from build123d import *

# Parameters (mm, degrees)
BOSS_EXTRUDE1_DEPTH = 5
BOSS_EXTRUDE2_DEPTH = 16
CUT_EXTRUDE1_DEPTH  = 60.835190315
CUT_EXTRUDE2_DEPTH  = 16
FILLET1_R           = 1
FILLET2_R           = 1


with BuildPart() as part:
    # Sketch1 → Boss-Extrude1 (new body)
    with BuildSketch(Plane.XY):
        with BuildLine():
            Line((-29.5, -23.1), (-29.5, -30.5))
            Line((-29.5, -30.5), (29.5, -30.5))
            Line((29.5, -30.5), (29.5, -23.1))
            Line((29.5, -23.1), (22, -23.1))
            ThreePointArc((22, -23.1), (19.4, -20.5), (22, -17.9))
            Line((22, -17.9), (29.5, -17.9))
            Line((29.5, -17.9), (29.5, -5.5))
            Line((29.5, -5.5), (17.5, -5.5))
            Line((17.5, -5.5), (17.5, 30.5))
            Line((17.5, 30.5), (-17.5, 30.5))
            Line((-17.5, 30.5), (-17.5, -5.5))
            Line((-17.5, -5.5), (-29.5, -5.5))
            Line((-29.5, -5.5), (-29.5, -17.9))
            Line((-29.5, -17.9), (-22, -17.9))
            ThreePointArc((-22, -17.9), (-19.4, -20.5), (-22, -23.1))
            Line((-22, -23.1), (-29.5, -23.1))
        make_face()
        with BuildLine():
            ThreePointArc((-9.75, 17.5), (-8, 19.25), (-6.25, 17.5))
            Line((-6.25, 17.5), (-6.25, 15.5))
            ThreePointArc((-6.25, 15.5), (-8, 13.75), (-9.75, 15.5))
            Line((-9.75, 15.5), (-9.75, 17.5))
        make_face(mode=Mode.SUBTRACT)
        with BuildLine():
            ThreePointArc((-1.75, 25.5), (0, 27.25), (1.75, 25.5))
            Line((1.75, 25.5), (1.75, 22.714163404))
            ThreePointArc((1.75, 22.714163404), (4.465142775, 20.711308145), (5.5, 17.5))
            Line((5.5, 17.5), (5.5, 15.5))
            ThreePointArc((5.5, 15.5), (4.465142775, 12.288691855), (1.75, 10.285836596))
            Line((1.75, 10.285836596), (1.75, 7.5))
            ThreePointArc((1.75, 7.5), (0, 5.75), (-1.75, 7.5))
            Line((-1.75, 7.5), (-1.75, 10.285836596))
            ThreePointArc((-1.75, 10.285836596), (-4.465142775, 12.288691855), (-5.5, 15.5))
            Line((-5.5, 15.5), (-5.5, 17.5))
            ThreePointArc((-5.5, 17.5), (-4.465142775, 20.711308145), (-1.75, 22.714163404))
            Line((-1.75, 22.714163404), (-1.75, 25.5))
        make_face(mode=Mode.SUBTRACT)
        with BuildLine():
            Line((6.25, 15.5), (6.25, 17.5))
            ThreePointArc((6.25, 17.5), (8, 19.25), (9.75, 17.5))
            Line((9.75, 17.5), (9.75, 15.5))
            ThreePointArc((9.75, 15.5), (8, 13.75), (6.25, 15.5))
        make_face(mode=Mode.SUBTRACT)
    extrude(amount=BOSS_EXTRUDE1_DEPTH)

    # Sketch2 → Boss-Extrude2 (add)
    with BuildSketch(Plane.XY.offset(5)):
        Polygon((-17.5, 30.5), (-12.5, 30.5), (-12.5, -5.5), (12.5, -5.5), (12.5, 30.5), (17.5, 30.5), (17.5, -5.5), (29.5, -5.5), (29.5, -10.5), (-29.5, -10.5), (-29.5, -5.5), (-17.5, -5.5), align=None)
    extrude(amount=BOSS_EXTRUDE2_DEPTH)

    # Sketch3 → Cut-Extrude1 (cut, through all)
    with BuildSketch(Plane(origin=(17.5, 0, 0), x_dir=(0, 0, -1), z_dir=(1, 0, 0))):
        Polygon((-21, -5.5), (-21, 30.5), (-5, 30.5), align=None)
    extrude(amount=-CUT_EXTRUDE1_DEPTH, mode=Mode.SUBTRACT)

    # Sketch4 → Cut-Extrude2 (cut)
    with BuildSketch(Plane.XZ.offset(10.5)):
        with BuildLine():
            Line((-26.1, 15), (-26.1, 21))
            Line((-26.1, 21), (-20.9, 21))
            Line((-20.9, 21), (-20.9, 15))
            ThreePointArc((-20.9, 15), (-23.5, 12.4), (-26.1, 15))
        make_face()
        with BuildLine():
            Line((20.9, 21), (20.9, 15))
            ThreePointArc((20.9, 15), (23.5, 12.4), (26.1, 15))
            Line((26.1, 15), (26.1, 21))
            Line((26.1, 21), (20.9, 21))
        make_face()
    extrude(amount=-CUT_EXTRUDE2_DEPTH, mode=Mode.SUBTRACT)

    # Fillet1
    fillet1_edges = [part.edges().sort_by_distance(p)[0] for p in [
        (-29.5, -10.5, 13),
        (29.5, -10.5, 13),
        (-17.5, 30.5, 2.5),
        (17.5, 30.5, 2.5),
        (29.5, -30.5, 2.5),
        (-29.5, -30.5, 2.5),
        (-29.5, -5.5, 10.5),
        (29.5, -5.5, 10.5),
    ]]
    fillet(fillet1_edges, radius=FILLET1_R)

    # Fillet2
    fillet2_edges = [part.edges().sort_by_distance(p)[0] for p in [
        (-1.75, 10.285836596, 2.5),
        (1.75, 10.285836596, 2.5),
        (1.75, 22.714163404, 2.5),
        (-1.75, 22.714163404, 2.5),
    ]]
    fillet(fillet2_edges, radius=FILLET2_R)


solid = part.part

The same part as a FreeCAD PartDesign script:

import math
import FreeCAD as App
import Part
import Sketcher


def edges_at(feature, points):
    """Names of the edges that pass closest to the given points."""
    edges = feature.Shape.Edges
    near = lambda p: min(range(len(edges)), key=lambda i: edges[i].distToShape(Part.Vertex(*p))[0])
    return sorted({f"Edge{near(p) + 1}" for p in points})


def add_polygon(sketch, points):
    """Adds a closed chain of lines whose ends are joined by coincident constraints."""
    first, n = sketch.GeometryCount, len(points)
    for a, b in zip(points, points[1:] + points[:1]):
        sketch.addGeometry(Part.LineSegment(App.Vector(*a, 0), App.Vector(*b, 0)), False)
    for i in range(n):
        sketch.addConstraint(Sketcher.Constraint("Coincident", first + i, 2, first + (i + 1) % n, 1))

doc = App.newDocument("Part")
body = doc.addObject("PartDesign::Body", "Body")

# Sketch on XY plane
sketch1 = body.newObject("Sketcher::SketchObject", "Sketch")
sketch1.AttachmentSupport = (doc.getObject("XY_Plane"), [""])
sketch1.MapMode = "FlatFace"
sketch1.addGeometry([
    Part.LineSegment(App.Vector(-29.5, -23.1, 0), App.Vector(-29.5, -30.5, 0)),  # 0
    Part.LineSegment(App.Vector(-29.5, -30.5, 0), App.Vector(29.5, -30.5, 0)),  # 1
    Part.LineSegment(App.Vector(29.5, -30.5, 0), App.Vector(29.5, -23.1, 0)),  # 2
    Part.LineSegment(App.Vector(29.5, -23.1, 0), App.Vector(22, -23.1, 0)),  # 3
    Part.ArcOfCircle(Part.Circle(App.Vector(22, -20.5, 0), App.Vector(0, 0, 1), 2.6), math.radians(90), math.radians(270)),  # 4
    Part.LineSegment(App.Vector(22, -17.9, 0), App.Vector(29.5, -17.9, 0)),  # 5
    Part.LineSegment(App.Vector(29.5, -17.9, 0), App.Vector(29.5, -5.5, 0)),  # 6
    Part.LineSegment(App.Vector(29.5, -5.5, 0), App.Vector(17.5, -5.5, 0)),  # 7
    Part.LineSegment(App.Vector(17.5, -5.5, 0), App.Vector(17.5, 30.5, 0)),  # 8
    Part.LineSegment(App.Vector(17.5, 30.5, 0), App.Vector(-17.5, 30.5, 0)),  # 9
    Part.LineSegment(App.Vector(-17.5, 30.5, 0), App.Vector(-17.5, -5.5, 0)),  # 10
    Part.LineSegment(App.Vector(-17.5, -5.5, 0), App.Vector(-29.5, -5.5, 0)),  # 11
    Part.LineSegment(App.Vector(-29.5, -5.5, 0), App.Vector(-29.5, -17.9, 0)),  # 12
    Part.LineSegment(App.Vector(-29.5, -17.9, 0), App.Vector(-22, -17.9, 0)),  # 13
    Part.ArcOfCircle(Part.Circle(App.Vector(-22, -20.5, 0), App.Vector(0, 0, 1), 2.6), math.radians(-90), math.radians(90)),  # 14
    Part.LineSegment(App.Vector(-22, -23.1, 0), App.Vector(-29.5, -23.1, 0)),  # 15
    Part.LineSegment(App.Vector(-9.8, 15.5, 0), App.Vector(-9.8, 17.5, 0)),  # 16
    Part.ArcOfCircle(Part.Circle(App.Vector(-8, 17.5, 0), App.Vector(0, 0, 1), 1.8), math.radians(0), math.radians(180)),  # 17
    Part.LineSegment(App.Vector(-6.2, 17.5, 0), App.Vector(-6.2, 15.5, 0)),  # 18
    Part.ArcOfCircle(Part.Circle(App.Vector(-8, 15.5, 0), App.Vector(0, 0, 1), 1.8), math.radians(180), math.radians(360)),  # 19
    Part.LineSegment(App.Vector(-1.8, 22.7, 0), App.Vector(-1.8, 25.5, 0)),  # 20
    Part.ArcOfCircle(Part.Circle(App.Vector(0, 25.5, 0), App.Vector(0, 0, 1), 1.8), math.radians(0), math.radians(180)),  # 21
    Part.LineSegment(App.Vector(1.8, 25.5, 0), App.Vector(1.8, 22.7, 0)),  # 22
    Part.ArcOfCircle(Part.Circle(App.Vector(0, 17.5, 0), App.Vector(0, 0, 1), 5.5), math.radians(0), math.radians(71)),  # 23
    Part.LineSegment(App.Vector(5.5, 17.5, 0), App.Vector(5.5, 15.5, 0)),  # 24
    Part.ArcOfCircle(Part.Circle(App.Vector(0, 15.5, 0), App.Vector(0, 0, 1), 5.5), math.radians(-71), math.radians(0)),  # 25
    Part.LineSegment(App.Vector(1.8, 10.3, 0), App.Vector(1.8, 7.5, 0)),  # 26
    Part.ArcOfCircle(Part.Circle(App.Vector(0, 7.5, 0), App.Vector(0, 0, 1), 1.8), math.radians(180), math.radians(360)),  # 27
    Part.LineSegment(App.Vector(-1.8, 7.5, 0), App.Vector(-1.8, 10.3, 0)),  # 28
    Part.ArcOfCircle(Part.Circle(App.Vector(0, 15.5, 0), App.Vector(0, 0, 1), 5.5), math.radians(180), math.radians(251)),  # 29
    Part.LineSegment(App.Vector(-5.5, 15.5, 0), App.Vector(-5.5, 17.5, 0)),  # 30
    Part.ArcOfCircle(Part.Circle(App.Vector(0, 17.5, 0), App.Vector(0, 0, 1), 5.5), math.radians(109), math.radians(180)),  # 31
    Part.ArcOfCircle(Part.Circle(App.Vector(8, 15.5, 0), App.Vector(0, 0, 1), 1.8), math.radians(180), math.radians(360)),  # 32
    Part.LineSegment(App.Vector(6.2, 15.5, 0), App.Vector(6.2, 17.5, 0)),  # 33
    Part.ArcOfCircle(Part.Circle(App.Vector(8, 17.5, 0), App.Vector(0, 0, 1), 1.8), math.radians(0), math.radians(180)),  # 34
    Part.LineSegment(App.Vector(9.8, 17.5, 0), App.Vector(9.8, 15.5, 0)),  # 35
], False)
sketch1.addConstraint([
    Sketcher.Constraint("Coincident", 0, 2, 1, 1),
    Sketcher.Constraint("Coincident", 1, 2, 2, 1),
    Sketcher.Constraint("Coincident", 2, 2, 3, 1),
    Sketcher.Constraint("Tangent", 3, 2, 4, 2),
    Sketcher.Constraint("Tangent", 4, 1, 5, 1),
    Sketcher.Constraint("Coincident", 5, 2, 6, 1),
    Sketcher.Constraint("Coincident", 6, 2, 7, 1),
    Sketcher.Constraint("Coincident", 7, 2, 8, 1),
    Sketcher.Constraint("Coincident", 8, 2, 9, 1),
    Sketcher.Constraint("Coincident", 9, 2, 10, 1),
    Sketcher.Constraint("Coincident", 10, 2, 11, 1),
    Sketcher.Constraint("Coincident", 11, 2, 12, 1),
    Sketcher.Constraint("Coincident", 12, 2, 13, 1),
    Sketcher.Constraint("Tangent", 13, 2, 14, 2),
    Sketcher.Constraint("Tangent", 14, 1, 15, 1),
    Sketcher.Constraint("Coincident", 15, 2, 0, 1),
    Sketcher.Constraint("Tangent", 16, 2, 17, 2),
    Sketcher.Constraint("Tangent", 17, 1, 18, 1),
    Sketcher.Constraint("Tangent", 18, 2, 19, 2),
    Sketcher.Constraint("Tangent", 19, 1, 16, 1),
    Sketcher.Constraint("Tangent", 20, 2, 21, 2),
    Sketcher.Constraint("Tangent", 21, 1, 22, 1),
    Sketcher.Constraint("Coincident", 22, 2, 23, 2),
    Sketcher.Constraint("Tangent", 23, 1, 24, 1),
    Sketcher.Constraint("Tangent", 24, 2, 25, 2),
    Sketcher.Constraint("Coincident", 25, 1, 26, 1),
    Sketcher.Constraint("Tangent", 26, 2, 27, 2),
    Sketcher.Constraint("Tangent", 27, 1, 28, 1),
    Sketcher.Constraint("Coincident", 28, 2, 29, 2),
    Sketcher.Constraint("Tangent", 29, 1, 30, 1),
    Sketcher.Constraint("Tangent", 30, 2, 31, 2),
    Sketcher.Constraint("Coincident", 31, 1, 20, 1),
    Sketcher.Constraint("Tangent", 32, 1, 33, 1),
    Sketcher.Constraint("Tangent", 33, 2, 34, 2),
    Sketcher.Constraint("Tangent", 34, 1, 35, 1),
    Sketcher.Constraint("Tangent", 35, 2, 32, 2),
    Sketcher.Constraint("Vertical", 0),
    Sketcher.Constraint("Horizontal", 1),
    Sketcher.Constraint("Vertical", 2),
    Sketcher.Constraint("Horizontal", 3),
    Sketcher.Constraint("Horizontal", 5),
    Sketcher.Constraint("Vertical", 6),
    Sketcher.Constraint("Horizontal", 7),
    Sketcher.Constraint("Vertical", 8),
    Sketcher.Constraint("Horizontal", 9),
    Sketcher.Constraint("Vertical", 10),
    Sketcher.Constraint("Horizontal", 11),
    Sketcher.Constraint("Vertical", 12),
    Sketcher.Constraint("Horizontal", 13),
    Sketcher.Constraint("Horizontal", 15),
    Sketcher.Constraint("Vertical", 16),
    Sketcher.Constraint("Vertical", 18),
    Sketcher.Constraint("Vertical", 20),
    Sketcher.Constraint("Vertical", 22),
    Sketcher.Constraint("Vertical", 24),
    Sketcher.Constraint("Vertical", 26),
    Sketcher.Constraint("Vertical", 28),
    Sketcher.Constraint("Vertical", 30),
    Sketcher.Constraint("Vertical", 33),
    Sketcher.Constraint("Vertical", 35),
    Sketcher.Constraint("Coincident", 29, 3, 25, 3),
    Sketcher.Constraint("Coincident", 31, 3, 23, 3),
    Sketcher.Constraint("Equal", 4, 14),
    Sketcher.Constraint("Equal", 19, 21),
    Sketcher.Constraint("Equal", 23, 25),
    Sketcher.Constraint("Equal", 21, 27),
    Sketcher.Constraint("Equal", 25, 29),
    Sketcher.Constraint("Equal", 27, 32),
    Sketcher.Constraint("Symmetric", 4, 3, 14, 3, -2),
    Sketcher.Constraint("Symmetric", 19, 3, 32, 3, -2),
    Sketcher.Constraint("Symmetric", 7, 2, 10, 2, -2),
    Sketcher.Constraint("Symmetric", 25, 1, 28, 2, -2),
    Sketcher.Constraint("PointOnObject", 21, 3, -2),
    Sketcher.Constraint("Horizontal", 17, 3, 23, 3),
    Sketcher.Constraint("Horizontal", 19, 3, 25, 3),
    Sketcher.Constraint("Horizontal", 31, 3, 34, 3),
    Sketcher.Constraint("Vertical", 2, 2, 5, 2),
    Sketcher.Constraint("Vertical", 0, 2, 11, 2),
    Sketcher.Constraint("Equal", 7, 11),
    Sketcher.Constraint("Equal", 22, 26),
    Sketcher.Constraint("Radius", 4, 2.6),
    Sketcher.Constraint("Radius", 23, 5.5),
    Sketcher.Constraint("DistanceX", 1, 1, 1, 2, 59.0),
    Sketcher.Constraint("DistanceX", 7, 2, 7, 1, 12.0),
    Sketcher.Constraint("DistanceY", 8, 1, 8, 2, 36.0),
    Sketcher.Constraint("DistanceY", 16, 1, 16, 2, 2.0),
    Sketcher.Constraint("Radius", 17, 1.75),
    Sketcher.Constraint("DistanceX", 3, 2, 3, 1, 7.5),
    Sketcher.Constraint("DistanceY", 0, 2, 0, 1, 7.4),
    Sketcher.Constraint("DistanceY", 6, 1, 6, 2, 12.4),
    Sketcher.Constraint("DistanceX", 17, 3, -1, 1, 8.0),
    Sketcher.Constraint("DistanceY", 14, 3, 17, 3, 38.0),
    Sketcher.Constraint("DistanceY", 17, 3, 21, 3, 8.0),
    Sketcher.Constraint("DistanceY", 4, 3, -1, 1, 20.5),
])
pad1 = body.newObject("PartDesign::Pad", "Pad")
pad1.Profile = sketch1
pad1.Length = 5

# Sketch on XY plane
sketch2 = body.newObject("Sketcher::SketchObject", "Sketch001")
sketch2.AttachmentSupport = (doc.getObject("XY_Plane"), [""])
sketch2.MapMode = "FlatFace"
sketch2.AttachmentOffset = App.Placement(App.Vector(0, 0, 5), App.Rotation())
add_polygon(sketch2, [(-12, 30), (-18, 30), (-18, -6), (-30, -6), (-30, -10), (30, -10), (30, -6), (18, -6), (18, 30), (12, 30), (12, -6), (-12, -6)])  # lines 0-11
sketch2.addConstraint([
    Sketcher.Constraint("Horizontal", 0),
    Sketcher.Constraint("Vertical", 1),
    Sketcher.Constraint("Horizontal", 2),
    Sketcher.Constraint("Vertical", 3),
    Sketcher.Constraint("Horizontal", 4),
    Sketcher.Constraint("Vertical", 5),
    Sketcher.Constraint("Horizontal", 6),
    Sketcher.Constraint("Vertical", 7),
    Sketcher.Constraint("Horizontal", 8),
    Sketcher.Constraint("Vertical", 9),
    Sketcher.Constraint("Horizontal", 10),
    Sketcher.Constraint("Vertical", 11),
    Sketcher.Constraint("Symmetric", 2, 2, 5, 2, -2),
    Sketcher.Constraint("Symmetric", 0, 2, 7, 2, -2),
    Sketcher.Constraint("Horizontal", 6, 2, 9, 2),
    Sketcher.Constraint("Equal", 0, 8),
    Sketcher.Constraint("Equal", 8, 3),
    Sketcher.Constraint("DistanceX", 0, 2, 0, 1, 5.0),
    Sketcher.Constraint("DistanceX", 2, 2, 2, 1, 12.0),
    Sketcher.Constraint("DistanceX", 4, 1, 4, 2, 59.0),
    Sketcher.Constraint("DistanceY", 1, 2, 1, 1, 36.0),
    Sketcher.Constraint("DistanceY", -1, 1, 0, 2, 30.5),
])
pad2 = body.newObject("PartDesign::Pad", "Pad001")
pad2.Profile = sketch2
pad2.Length = 16

# Sketch on YZ plane
sketch3 = body.newObject("Sketcher::SketchObject", "Sketch002")
sketch3.AttachmentSupport = (doc.getObject("YZ_Plane"), [""])
sketch3.MapMode = "FlatFace"
sketch3.AttachmentOffset = App.Placement(App.Vector(0, 0, 17.5), App.Rotation())
add_polygon(sketch3, [(30, 21), (-6, 21), (30, 5)])  # lines 0-2
sketch3.addConstraint([
    Sketcher.Constraint("Horizontal", 0),
    Sketcher.Constraint("Vertical", 2),
    Sketcher.Constraint("DistanceX", 0, 2, 0, 1, 36.0),
    Sketcher.Constraint("DistanceY", 2, 1, 2, 2, 16.0),
    Sketcher.Constraint("DistanceY", -1, 1, 0, 2, 21.0),
    Sketcher.Constraint("DistanceX", 0, 2, -1, 1, 5.5),
])
pocket1 = body.newObject("PartDesign::Pocket", "Pocket")
pocket1.Profile = sketch3
pocket1.Type = "ThroughAll"

# Sketch on XZ plane
sketch4 = body.newObject("Sketcher::SketchObject", "Sketch003")
sketch4.AttachmentSupport = (doc.getObject("XZ_Plane"), [""])
sketch4.MapMode = "FlatFace"
sketch4.AttachmentOffset = App.Placement(App.Vector(0, 0, 10.5), App.Rotation())
sketch4.addGeometry([
    Part.LineSegment(App.Vector(-26.1, 21, 0), App.Vector(-26.1, 15, 0)),  # 0
    Part.ArcOfCircle(Part.Circle(App.Vector(-23.5, 15, 0), App.Vector(0, 0, 1), 2.6), math.radians(180), math.radians(360)),  # 1
    Part.LineSegment(App.Vector(-20.9, 15, 0), App.Vector(-20.9, 21, 0)),  # 2
    Part.LineSegment(App.Vector(-20.9, 21, 0), App.Vector(-26.1, 21, 0)),  # 3
    Part.LineSegment(App.Vector(20.9, 21, 0), App.Vector(20.9, 15, 0)),  # 4
    Part.ArcOfCircle(Part.Circle(App.Vector(23.5, 15, 0), App.Vector(0, 0, 1), 2.6), math.radians(180), math.radians(360)),  # 5
    Part.LineSegment(App.Vector(26.1, 15, 0), App.Vector(26.1, 21, 0)),  # 6
    Part.LineSegment(App.Vector(26.1, 21, 0), App.Vector(20.9, 21, 0)),  # 7
], False)
sketch4.addConstraint([
    Sketcher.Constraint("Tangent", 0, 2, 1, 1),
    Sketcher.Constraint("Tangent", 1, 2, 2, 1),
    Sketcher.Constraint("Coincident", 2, 2, 3, 1),
    Sketcher.Constraint("Coincident", 3, 2, 0, 1),
    Sketcher.Constraint("Tangent", 4, 2, 5, 1),
    Sketcher.Constraint("Tangent", 5, 2, 6, 1),
    Sketcher.Constraint("Coincident", 6, 2, 7, 1),
    Sketcher.Constraint("Coincident", 7, 2, 4, 1),
    Sketcher.Constraint("Vertical", 0),
    Sketcher.Constraint("Vertical", 2),
    Sketcher.Constraint("Horizontal", 3),
    Sketcher.Constraint("Vertical", 4),
    Sketcher.Constraint("Vertical", 6),
    Sketcher.Constraint("Horizontal", 7),
    Sketcher.Constraint("Equal", 1, 5),
    Sketcher.Constraint("Symmetric", 1, 3, 5, 3, -2),
    Sketcher.Constraint("Horizontal", 3, 2, 6, 2),
    Sketcher.Constraint("Radius", 1, 2.6),
    Sketcher.Constraint("DistanceY", 0, 2, 0, 1, 6.0),
    Sketcher.Constraint("DistanceY", -1, 1, 1, 3, 15.0),
    Sketcher.Constraint("DistanceX", 1, 3, 5, 3, 47.0),
])
pocket2 = body.newObject("PartDesign::Pocket", "Pocket001")
pocket2.Profile = sketch4
pocket2.Length = 16
doc.recompute()

fillet = body.newObject("PartDesign::Fillet", "Fillet")
fillet.Base = (pocket2, edges_at(pocket2, [
    (-29.5, -10.5, 13),
    (29.5, -10.5, 13),
    (-17.5, 30.5, 2.5),
    (17.5, 30.5, 2.5),
    (29.5, -30.5, 2.5),
    (-29.5, -30.5, 2.5),
    (-29.5, -5.5, 10.5),
    (29.5, -5.5, 10.5),
]))
fillet.Radius = 1
doc.recompute()

fillet2 = body.newObject("PartDesign::Fillet", "Fillet001")
fillet2.Base = (fillet, edges_at(fillet, [
    (-1.75, 10.286, 2.5),
    (1.75, 10.286, 2.5),
    (1.75, 22.714, 2.5),
    (-1.75, 22.714, 2.5),
]))
fillet2.Radius = 1

doc.recompute()
